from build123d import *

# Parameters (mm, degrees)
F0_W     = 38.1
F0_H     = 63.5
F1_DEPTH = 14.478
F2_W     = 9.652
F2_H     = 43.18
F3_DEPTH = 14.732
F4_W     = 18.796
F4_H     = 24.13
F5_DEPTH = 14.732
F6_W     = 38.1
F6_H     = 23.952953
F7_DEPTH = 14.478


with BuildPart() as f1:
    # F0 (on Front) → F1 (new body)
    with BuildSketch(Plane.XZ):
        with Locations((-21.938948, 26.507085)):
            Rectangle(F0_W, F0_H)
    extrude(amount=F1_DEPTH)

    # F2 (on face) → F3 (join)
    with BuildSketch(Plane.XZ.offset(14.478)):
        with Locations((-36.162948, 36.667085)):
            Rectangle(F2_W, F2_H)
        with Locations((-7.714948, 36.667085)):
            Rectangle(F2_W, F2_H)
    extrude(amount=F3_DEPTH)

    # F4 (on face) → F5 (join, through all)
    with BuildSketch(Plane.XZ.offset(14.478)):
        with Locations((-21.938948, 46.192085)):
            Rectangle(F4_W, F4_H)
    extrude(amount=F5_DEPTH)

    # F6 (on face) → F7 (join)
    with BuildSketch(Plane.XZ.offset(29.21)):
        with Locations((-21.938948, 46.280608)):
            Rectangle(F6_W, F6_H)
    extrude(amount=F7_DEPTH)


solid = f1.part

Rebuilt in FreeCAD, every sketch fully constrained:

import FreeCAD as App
import Part
import Sketcher
Q = App.Units.Quantity


def add_polygon(sketch, points):
    """Adds a closed chain of lines whose ends are joined by coincident constraints."""
    first, n = sketch.GeometryCount, len(points)
    for a, b in zip(points, points[1:] + points[:1]):
        sketch.addGeometry(Part.LineSegment(App.Vector(*a, 0), App.Vector(*b, 0)), False)
    for i in range(n):
        sketch.addConstraint(Sketcher.Constraint("Coincident", first + i, 2, first + (i + 1) % n, 1))

doc = App.newDocument("Part")
body = doc.addObject("PartDesign::Body", "Body")

# Sketch on XZ plane
sketch1 = body.newObject("Sketcher::SketchObject", "Sketch")
sketch1.AttachmentSupport = (doc.getObject("XZ_Plane"), [""])
sketch1.MapMode = "FlatFace"
add_polygon(sketch1, [(-41, 58), (-41, -5), (-3, -5), (-3, 58)])  # lines 0-3
sketch1.addConstraint(Sketcher.Constraint("Vertical", 0))
sketch1.addConstraint(Sketcher.Constraint("Horizontal", 1))
sketch1.addConstraint(Sketcher.Constraint("Vertical", 2))
sketch1.addConstraint(Sketcher.Constraint("Horizontal", 3))
sketch1.addConstraint(Sketcher.Constraint("DistanceX", 1, 1, 1, 2, Q("1.5 in")))
sketch1.addConstraint(Sketcher.Constraint("DistanceY", 0, 2, 0, 1, Q("2.5 in")))
sketch1.addConstraint(Sketcher.Constraint("DistanceX", 1, 2, -1, 1, Q("2.888948 mm")))
sketch1.addConstraint(Sketcher.Constraint("DistanceY", 0, 2, -1, 1, Q("5.242915 mm")))
pad1 = body.newObject("PartDesign::Pad", "Pad")
pad1.Profile = sketch1
pad1.Length = Q("0.57 in")

# Sketch on XZ plane
sketch2 = body.newObject("Sketcher::SketchObject", "Sketch001")
sketch2.AttachmentSupport = (doc.getObject("XZ_Plane"), [""])
sketch2.MapMode = "FlatFace"
sketch2.AttachmentOffset = App.Placement(App.Vector(0, 0, 0.57 * 25.4), App.Rotation())
add_polygon(sketch2, [(-41, 58), (-41, 15), (-31, 15), (-31, 58)])  # lines 0-3
add_polygon(sketch2, [(-13, 58), (-13, 15), (-3, 15), (-3, 58)])  # lines 4-7
sketch2.addConstraint(Sketcher.Constraint("Vertical", 0))
sketch2.addConstraint(Sketcher.Constraint("Horizontal", 1))
sketch2.addConstraint(Sketcher.Constraint("Vertical", 2))
sketch2.addConstraint(Sketcher.Constraint("Horizontal", 3))
sketch2.addConstraint(Sketcher.Constraint("Vertical", 4))
sketch2.addConstraint(Sketcher.Constraint("Horizontal", 5))
sketch2.addConstraint(Sketcher.Constraint("Vertical", 6))
sketch2.addConstraint(Sketcher.Constraint("Horizontal", 7))
sketch2.addConstraint(Sketcher.Constraint("Horizontal", 1, 2, 4, 2))
sketch2.addConstraint(Sketcher.Constraint("Horizontal", 3, 2, 6, 2))
sketch2.addConstraint(Sketcher.Constraint("Equal", 3, 5))
sketch2.addConstraint(Sketcher.Constraint("DistanceY", 0, 2, 0, 1, Q("1.7 in")))
sketch2.addConstraint(Sketcher.Constraint("DistanceX", 1, 1, 1, 2, Q("0.38 in")))
sketch2.addConstraint(Sketcher.Constraint("DistanceX", 0, 2, 5, 2, Q("1.5 in")))
sketch2.addConstraint(Sketcher.Constraint("DistanceX", 5, 2, -1, 1, Q("2.888948 mm")))
sketch2.addConstraint(Sketcher.Constraint("DistanceY", -1, 1, 0, 2, Q("15.077085 mm")))
pad2 = body.newObject("PartDesign::Pad", "Pad001")
pad2.Profile = sketch2
pad2.Length = Q("0.58 in")

# Sketch on XZ plane
sketch3 = body.newObject("Sketcher::SketchObject", "Sketch002")
sketch3.AttachmentSupport = (doc.getObject("XZ_Plane"), [""])
sketch3.MapMode = "FlatFace"
sketch3.AttachmentOffset = App.Placement(App.Vector(0, 0, 0.57 * 25.4), App.Rotation())
add_polygon(sketch3, [(-31, 58), (-31, 34), (-13, 34), (-13, 58)])  # lines 0-3
sketch3.addConstraint(Sketcher.Constraint("Vertical", 0))
sketch3.addConstraint(Sketcher.Constraint("Horizontal", 1))
sketch3.addConstraint(Sketcher.Constraint("Vertical", 2))
sketch3.addConstraint(Sketcher.Constraint("Horizontal", 3))
sketch3.addConstraint(Sketcher.Constraint("DistanceX", 1, 1, 1, 2, Q("0.74 in")))
sketch3.addConstraint(Sketcher.Constraint("DistanceY", 0, 2, 0, 1, Q("0.95 in")))
sketch3.addConstraint(Sketcher.Constraint("DistanceX", 0, 2, -1, 1, Q("31.336948 mm")))
sketch3.addConstraint(Sketcher.Constraint("DistanceY", -1, 1, 0, 2, Q("34.127085 mm")))
pad3 = body.newObject("PartDesign::Pad", "Pad002")
pad3.Profile = sketch3
pad3.Length = Q("0.58 in")

# Sketch on XZ plane
sketch4 = body.newObject("Sketcher::SketchObject", "Sketch003")
sketch4.AttachmentSupport = (doc.getObject("XZ_Plane"), [""])
sketch4.MapMode = "FlatFace"
sketch4.AttachmentOffset = App.Placement(App.Vector(0, 0, 1.15 * 25.4), App.Rotation())
add_polygon(sketch4, [(-41, 58), (-41, 34), (-3, 34), (-3, 58)])  # lines 0-3
sketch4.addConstraint(Sketcher.Constraint("Vertical", 0))
sketch4.addConstraint(Sketcher.Constraint("Horizontal", 1))
sketch4.addConstraint(Sketcher.Constraint("Vertical", 2))
sketch4.addConstraint(Sketcher.Constraint("Horizontal", 3))
sketch4.addConstraint(Sketcher.Constraint("DistanceX", 1, 1, 1, 2, Q("1.5 in")))
sketch4.addConstraint(Sketcher.Constraint("DistanceY", 0, 2, 0, 1, Q("23.952953 mm")))
sketch4.addConstraint(Sketcher.Constraint("DistanceY", -1, 1, 0, 2, Q("34.304131 mm")))
sketch4.addConstraint(Sketcher.Constraint("DistanceX", 1, 2, -1, 1, Q("2.888948 mm")))
pad4 = body.newObject("PartDesign::Pad", "Pad003")
pad4.Profile = sketch4
pad4.Length = Q("0.57 in")

doc.recompute()
